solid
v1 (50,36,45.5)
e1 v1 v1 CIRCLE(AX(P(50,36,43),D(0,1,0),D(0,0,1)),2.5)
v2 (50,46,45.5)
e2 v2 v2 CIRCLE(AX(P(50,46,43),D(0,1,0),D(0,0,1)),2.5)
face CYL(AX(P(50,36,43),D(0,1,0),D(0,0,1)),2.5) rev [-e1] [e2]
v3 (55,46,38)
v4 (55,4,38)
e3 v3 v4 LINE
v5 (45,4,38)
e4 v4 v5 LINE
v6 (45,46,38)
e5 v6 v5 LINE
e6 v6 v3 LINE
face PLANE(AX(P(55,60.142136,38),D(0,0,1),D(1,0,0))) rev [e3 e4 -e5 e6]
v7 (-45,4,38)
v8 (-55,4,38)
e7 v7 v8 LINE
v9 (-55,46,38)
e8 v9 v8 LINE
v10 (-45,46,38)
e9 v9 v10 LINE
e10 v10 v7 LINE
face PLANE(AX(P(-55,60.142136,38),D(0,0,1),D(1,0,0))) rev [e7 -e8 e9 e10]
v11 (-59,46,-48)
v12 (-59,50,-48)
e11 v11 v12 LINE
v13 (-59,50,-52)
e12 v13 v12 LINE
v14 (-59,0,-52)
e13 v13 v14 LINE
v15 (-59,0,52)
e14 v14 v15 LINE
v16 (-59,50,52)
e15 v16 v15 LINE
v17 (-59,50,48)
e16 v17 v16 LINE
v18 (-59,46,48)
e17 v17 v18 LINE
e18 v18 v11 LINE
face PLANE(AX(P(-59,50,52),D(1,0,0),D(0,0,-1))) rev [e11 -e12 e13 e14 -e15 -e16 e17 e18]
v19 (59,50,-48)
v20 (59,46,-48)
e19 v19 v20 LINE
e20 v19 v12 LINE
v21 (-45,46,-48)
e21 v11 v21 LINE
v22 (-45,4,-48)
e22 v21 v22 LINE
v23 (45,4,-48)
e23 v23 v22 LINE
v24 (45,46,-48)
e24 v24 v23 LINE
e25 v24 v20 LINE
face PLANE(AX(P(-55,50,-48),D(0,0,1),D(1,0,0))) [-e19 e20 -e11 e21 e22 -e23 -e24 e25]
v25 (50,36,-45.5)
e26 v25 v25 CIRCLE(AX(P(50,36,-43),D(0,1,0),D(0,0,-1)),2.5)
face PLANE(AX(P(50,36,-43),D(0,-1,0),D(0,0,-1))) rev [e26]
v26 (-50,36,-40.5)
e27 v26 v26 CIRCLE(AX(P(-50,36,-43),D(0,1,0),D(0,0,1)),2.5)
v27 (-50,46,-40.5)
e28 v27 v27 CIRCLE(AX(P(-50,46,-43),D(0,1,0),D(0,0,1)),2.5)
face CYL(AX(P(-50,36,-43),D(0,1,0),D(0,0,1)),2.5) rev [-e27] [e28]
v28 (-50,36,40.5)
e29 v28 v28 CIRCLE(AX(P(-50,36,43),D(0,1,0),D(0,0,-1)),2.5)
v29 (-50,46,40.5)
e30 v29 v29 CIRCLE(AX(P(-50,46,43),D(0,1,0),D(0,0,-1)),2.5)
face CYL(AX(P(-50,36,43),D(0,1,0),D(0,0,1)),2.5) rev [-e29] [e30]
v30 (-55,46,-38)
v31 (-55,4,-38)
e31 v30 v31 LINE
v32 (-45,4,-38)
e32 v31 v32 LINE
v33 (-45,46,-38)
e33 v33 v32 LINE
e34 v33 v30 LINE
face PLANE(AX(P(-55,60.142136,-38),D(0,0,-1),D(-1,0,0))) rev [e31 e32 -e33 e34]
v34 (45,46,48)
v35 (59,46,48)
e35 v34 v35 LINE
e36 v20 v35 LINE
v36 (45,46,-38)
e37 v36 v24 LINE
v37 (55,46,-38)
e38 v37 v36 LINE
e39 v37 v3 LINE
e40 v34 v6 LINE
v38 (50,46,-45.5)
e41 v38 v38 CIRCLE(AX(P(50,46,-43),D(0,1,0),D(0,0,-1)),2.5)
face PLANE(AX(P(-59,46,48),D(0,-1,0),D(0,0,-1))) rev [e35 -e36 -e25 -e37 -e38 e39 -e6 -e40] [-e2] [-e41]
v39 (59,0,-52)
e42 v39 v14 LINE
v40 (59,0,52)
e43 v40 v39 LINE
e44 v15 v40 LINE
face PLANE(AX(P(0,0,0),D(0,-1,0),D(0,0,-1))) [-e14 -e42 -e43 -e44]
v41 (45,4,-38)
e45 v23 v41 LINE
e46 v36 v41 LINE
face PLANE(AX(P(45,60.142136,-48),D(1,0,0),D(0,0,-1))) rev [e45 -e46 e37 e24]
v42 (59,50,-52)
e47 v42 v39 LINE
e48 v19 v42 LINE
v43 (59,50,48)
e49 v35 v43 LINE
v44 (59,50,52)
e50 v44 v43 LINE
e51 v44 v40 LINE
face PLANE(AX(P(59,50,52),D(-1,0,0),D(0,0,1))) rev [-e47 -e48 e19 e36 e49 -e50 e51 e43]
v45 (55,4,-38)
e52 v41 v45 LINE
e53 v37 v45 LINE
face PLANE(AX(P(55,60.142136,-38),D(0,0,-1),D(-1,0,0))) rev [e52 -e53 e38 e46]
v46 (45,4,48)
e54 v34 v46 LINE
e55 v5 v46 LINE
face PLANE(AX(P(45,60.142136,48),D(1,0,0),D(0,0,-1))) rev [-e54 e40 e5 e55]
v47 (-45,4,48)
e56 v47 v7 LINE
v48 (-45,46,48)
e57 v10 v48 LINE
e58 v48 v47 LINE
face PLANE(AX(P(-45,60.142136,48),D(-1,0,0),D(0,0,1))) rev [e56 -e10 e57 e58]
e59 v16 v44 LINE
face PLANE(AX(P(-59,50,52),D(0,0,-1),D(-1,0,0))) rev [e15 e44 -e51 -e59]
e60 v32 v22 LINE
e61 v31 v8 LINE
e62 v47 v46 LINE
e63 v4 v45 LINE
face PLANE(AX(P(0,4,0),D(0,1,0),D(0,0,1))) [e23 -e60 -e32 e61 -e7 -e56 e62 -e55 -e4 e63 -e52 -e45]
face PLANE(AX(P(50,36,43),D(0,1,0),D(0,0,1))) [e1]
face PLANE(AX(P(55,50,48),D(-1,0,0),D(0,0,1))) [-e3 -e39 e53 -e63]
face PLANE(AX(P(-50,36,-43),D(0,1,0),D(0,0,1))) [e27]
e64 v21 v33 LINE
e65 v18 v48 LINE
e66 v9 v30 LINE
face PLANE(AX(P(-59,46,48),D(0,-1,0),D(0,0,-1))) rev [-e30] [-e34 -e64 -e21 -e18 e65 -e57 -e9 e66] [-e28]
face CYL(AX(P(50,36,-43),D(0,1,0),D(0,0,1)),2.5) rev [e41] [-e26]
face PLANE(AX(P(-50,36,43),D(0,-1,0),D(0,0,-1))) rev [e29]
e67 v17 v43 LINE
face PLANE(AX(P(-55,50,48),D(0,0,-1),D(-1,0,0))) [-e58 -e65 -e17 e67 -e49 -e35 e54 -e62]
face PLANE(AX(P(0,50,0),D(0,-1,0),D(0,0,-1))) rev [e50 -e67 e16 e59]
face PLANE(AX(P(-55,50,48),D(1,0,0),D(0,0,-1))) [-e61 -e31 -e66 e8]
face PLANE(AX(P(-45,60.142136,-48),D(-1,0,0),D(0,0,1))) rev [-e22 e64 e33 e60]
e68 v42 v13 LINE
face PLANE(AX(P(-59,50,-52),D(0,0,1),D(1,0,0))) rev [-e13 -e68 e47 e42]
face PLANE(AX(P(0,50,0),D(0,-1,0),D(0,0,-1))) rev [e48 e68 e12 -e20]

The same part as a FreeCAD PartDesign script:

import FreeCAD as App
import Part
import Sketcher
from FreeCAD import Vector
Q = App.Units.Quantity


def add_polygon(sketch, points):
    """Adds a closed chain of lines whose ends are joined by coincident constraints."""
    first, n = sketch.GeometryCount, len(points)
    for a, b in zip(points, points[1:] + points[:1]):
        sketch.addGeometry(Part.LineSegment(App.Vector(*a, 0), App.Vector(*b, 0)), False)
    for i in range(n):
        sketch.addConstraint(Sketcher.Constraint("Coincident", first + i, 2, first + (i + 1) % n, 1))

doc = App.newDocument("Part")
body = doc.addObject("PartDesign::Body", "Body")

# Sketch on XZ plane
sketch1 = body.newObject("Sketcher::SketchObject", "Sketch")
sketch1.AttachmentSupport = (doc.getObject("XZ_Plane"), [""])
sketch1.MapMode = "FlatFace"
add_polygon(sketch1, [(-59, -52), (-59, 52), (59, 52), (59, -52)])  # lines 0-3
add_polygon(sketch1, [(55, 48), (-55, 48), (-55, -48), (55, -48)])  # lines 4-7
sketch1.addConstraint([
    Sketcher.Constraint("Vertical", 0),
    Sketcher.Constraint("Horizontal", 1),
    Sketcher.Constraint("Vertical", 2),
    Sketcher.Constraint("Horizontal", 3),
    Sketcher.Constraint("Horizontal", 4),
    Sketcher.Constraint("Vertical", 5),
    Sketcher.Constraint("Horizontal", 6),
    Sketcher.Constraint("Vertical", 7),
    Sketcher.Constraint("Symmetric", 0, 2, 2, 2, -1, 1),
    Sketcher.Constraint("Symmetric", 4, 2, 6, 2, -1, 1),
    Sketcher.Constraint("DistanceX", 1, 1, 1, 2, Q("118 mm")),
    Sketcher.Constraint("DistanceX", 4, 2, 4, 1, Q("110 mm")),
    Sketcher.Constraint("DistanceY", 0, 1, 0, 2, Q("104 mm")),
    Sketcher.Constraint("DistanceY", 5, 2, 5, 1, Q("96 mm")),
])
pad1 = body.newObject("PartDesign::Pad", "Pad")
pad1.Profile = sketch1
pad1.Length = 50
pad1.Reversed = True

# Sketch on XZ plane
sketch2 = body.newObject("Sketcher::SketchObject", "Sketch001")
sketch2.AttachmentSupport = (doc.getObject("XZ_Plane"), [""])
sketch2.MapMode = "FlatFace"
add_polygon(sketch2, [(-59, -52), (-59, 52), (59, 52), (59, -52)])  # lines 0-3
sketch2.addConstraint([
    Sketcher.Constraint("Vertical", 0),
    Sketcher.Constraint("Horizontal", 1),
    Sketcher.Constraint("Vertical", 2),
    Sketcher.Constraint("Horizontal", 3),
    Sketcher.Constraint("Symmetric", 0, 2, 2, 2, -1, 1),
    Sketcher.Constraint("DistanceX", 1, 1, 1, 2, Q("118 mm")),
    Sketcher.Constraint("DistanceY", 0, 1, 0, 2, Q("104 mm")),
])
pad2 = body.newObject("PartDesign::Pad", "Pad001")
pad2.Profile = sketch2
pad2.Length = 4
pad2.Reversed = True

# Sketch on YZ plane
sketch3 = body.newObject("Sketcher::SketchObject", "Sketch002")
sketch3.AttachmentSupport = (doc.getObject("YZ_Plane"), [""])
sketch3.MapMode = "FlatFace"
sketch3.AttachmentOffset = App.Placement(Vector(0, 0, 59), App.Rotation())
add_polygon(sketch3, [(50, 48), (46, 48), (46, -48), (50, -48)])  # lines 0-3
sketch3.addConstraint([
    Sketcher.Constraint("Horizontal", 0),
    Sketcher.Constraint("Vertical", 1),
    Sketcher.Constraint("Horizontal", 2),
    Sketcher.Constraint("Vertical", 3),
    Sketcher.Constraint("DistanceX", 0, 2, 0, 1, Q("4 mm")),
    Sketcher.Constraint("DistanceY", 1, 2, 1, 1, Q("96 mm")),
    Sketcher.Constraint("DistanceX", -1, 1, 0, 2, Q("46 mm")),
    Sketcher.Constraint("DistanceY", -1, 1, 0, 2, Q("48 mm")),
])
pocket1 = body.newObject("PartDesign::Pocket", "Pocket")
pocket1.Profile = sketch3
pocket1.Type = "ThroughAll"
pocket1.Midplane = True

# Sketch on XZ plane
sketch4 = body.newObject("Sketcher::SketchObject", "Sketch003")
sketch4.AttachmentSupport = (doc.getObject("XZ_Plane"), [""])
sketch4.MapMode = "FlatFace"
sketch4.AttachmentOffset = App.Placement(Vector(0, 0, -4), App.Rotation())
add_polygon(sketch4, [(-55, -48), (-55, -38), (-45, -38), (-45, -48)])  # lines 0-3
add_polygon(sketch4, [(-55, 38), (-55, 48), (-45, 48), (-45, 38)])  # lines 4-7
add_polygon(sketch4, [(45, 38), (45, 48), (55, 48), (55, 38)])  # lines 8-11
add_polygon(sketch4, [(45, -48), (45, -38), (55, -38), (55, -48)])  # lines 12-15
sketch4.addConstraint([
    Sketcher.Constraint("Vertical", 0),
    Sketcher.Constraint("Horizontal", 1),
    Sketcher.Constraint("Vertical", 2),
    Sketcher.Constraint("Horizontal", 3),
    Sketcher.Constraint("Vertical", 4),
    Sketcher.Constraint("Horizontal", 5),
    Sketcher.Constraint("Vertical", 6),
    Sketcher.Constraint("Horizontal", 7),
    Sketcher.Constraint("Vertical", 8),
    Sketcher.Constraint("Horizontal", 9),
    Sketcher.Constraint("Vertical", 10),
    Sketcher.Constraint("Horizontal", 11),
    Sketcher.Constraint("Vertical", 12),
    Sketcher.Constraint("Horizontal", 13),
    Sketcher.Constraint("Vertical", 14),
    Sketcher.Constraint("Horizontal", 15),
    Sketcher.Constraint("Symmetric", 2, 2, 8, 2, -1, 1),
    Sketcher.Constraint("Symmetric", 0, 2, 10, 2, -1, 1),
    Sketcher.Constraint("Symmetric", 6, 2, 12, 2, -1, 1),
    Sketcher.Constraint("Symmetric", 4, 2, 14, 2, -1, 1),
    Sketcher.Constraint("Symmetric", 5, 2, 8, 2, -2),
    Sketcher.Constraint("Symmetric", 7, 2, 10, 2, -2),
    Sketcher.Constraint("Equal", 15, 0),
    Sketcher.Constraint("DistanceX", 1, 1, 1, 2, Q("10 mm")),
    Sketcher.Constraint("DistanceX", 0, 2, -1, 1, Q("55 mm")),
    Sketcher.Constraint("DistanceY", 0, 2, -1, 1, Q("38 mm")),
])
pad3 = body.newObject("PartDesign::Pad", "Pad002")
pad3.Profile = sketch4
pad3.Length = 42
pad3.Reversed = True

# Sketch on XZ plane
sketch5 = body.newObject("Sketcher::SketchObject", "Sketch004")
sketch5.AttachmentSupport = (doc.getObject("XZ_Plane"), [""])
sketch5.MapMode = "FlatFace"
sketch5.AttachmentOffset = App.Placement(Vector(0, 0, -46), App.Rotation())
sketch5.addGeometry([
    Part.Circle(Vector(-50, -43, 0), Vector(0, 0, 1), 2.5),
    Part.Circle(Vector(50, -43, 0), Vector(0, 0, 1), 2.5),
    Part.Circle(Vector(50, 43, 0), Vector(0, 0, 1), 2.5),
    Part.Circle(Vector(-50, 43, 0), Vector(0, 0, 1), 2.5),
], False)
sketch5.addConstraint([
    Sketcher.Constraint("Equal", 0, 1),
    Sketcher.Constraint("Equal", 1, 2),
    Sketcher.Constraint("Equal", 2, 3),
    Sketcher.Constraint("Symmetric", 0, 3, 2, 3, -1, 1),
    Sketcher.Constraint("Symmetric", 1, 3, 3, 3, -1, 1),
    Sketcher.Constraint("Symmetric", 0, 3, 1, 3, -2),
    Sketcher.Constraint("Diameter", 0, Q("5 mm")),
    Sketcher.Constraint("DistanceX", 0, 3, -1, 1, Q("50 mm")),
    Sketcher.Constraint("DistanceY", 0, 3, -1, 1, Q("43 mm")),
])
pocket2 = body.newObject("PartDesign::Pocket", "Pocket001")
pocket2.Profile = sketch5
pocket2.Length = 10
pocket2.Reversed = True

doc.recompute()
